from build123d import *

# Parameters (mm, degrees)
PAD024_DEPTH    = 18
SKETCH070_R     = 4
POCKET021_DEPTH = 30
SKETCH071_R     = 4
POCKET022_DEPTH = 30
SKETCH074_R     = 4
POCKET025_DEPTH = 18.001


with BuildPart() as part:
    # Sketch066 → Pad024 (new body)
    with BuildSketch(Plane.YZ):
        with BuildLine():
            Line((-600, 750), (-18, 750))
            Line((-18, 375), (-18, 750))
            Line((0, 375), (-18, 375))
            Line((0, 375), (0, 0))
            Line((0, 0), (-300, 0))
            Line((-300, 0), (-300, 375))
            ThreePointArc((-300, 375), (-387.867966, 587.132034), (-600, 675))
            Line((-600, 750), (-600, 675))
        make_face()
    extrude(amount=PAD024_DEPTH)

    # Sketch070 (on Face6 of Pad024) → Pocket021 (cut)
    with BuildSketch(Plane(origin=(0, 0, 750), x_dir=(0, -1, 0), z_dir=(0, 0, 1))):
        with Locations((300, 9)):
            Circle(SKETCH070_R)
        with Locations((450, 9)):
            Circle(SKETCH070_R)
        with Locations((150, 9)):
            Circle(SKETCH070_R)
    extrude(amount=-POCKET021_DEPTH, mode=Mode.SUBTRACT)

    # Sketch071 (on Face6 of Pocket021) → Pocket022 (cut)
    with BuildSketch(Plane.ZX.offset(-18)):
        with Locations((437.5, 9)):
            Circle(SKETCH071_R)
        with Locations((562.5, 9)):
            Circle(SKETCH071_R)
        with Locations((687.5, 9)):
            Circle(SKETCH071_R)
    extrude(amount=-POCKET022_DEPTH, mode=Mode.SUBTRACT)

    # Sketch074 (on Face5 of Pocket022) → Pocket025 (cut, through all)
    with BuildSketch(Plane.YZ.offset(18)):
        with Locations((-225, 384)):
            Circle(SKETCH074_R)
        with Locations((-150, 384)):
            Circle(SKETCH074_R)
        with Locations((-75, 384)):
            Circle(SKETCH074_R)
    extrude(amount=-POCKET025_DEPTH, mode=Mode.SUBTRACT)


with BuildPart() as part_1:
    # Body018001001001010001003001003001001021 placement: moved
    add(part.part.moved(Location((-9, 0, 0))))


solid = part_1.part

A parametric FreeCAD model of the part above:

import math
import FreeCAD as App
import Part
import Sketcher
Q = App.Units.Quantity

doc = App.newDocument("Part")
params = doc.addObject("Spreadsheet::Sheet", "Params")
for row, (alias, value) in enumerate([
    ("sketch1_radius", "300.000001 mm"),
    ("sketch1_width", "582 mm"),
    ("sketch1_width2", "300 mm"),
    ("sketch1_height", "75 mm"),
    ("pad1_length", "18 mm"),
    ("sketch2_diameter", "8 mm"),
    ("pocket1_length", "30 mm"),
    ("sketch3_diameter", "8 mm"),
    ("pocket2_length", "30 mm"),
    ("sketch4_diameter", "8 mm"),
], start=1):
    params.set(f"A{row}", alias)
    params.set(f"B{row}", "=" + value)
    params.setAlias(f"B{row}", alias)

body = doc.addObject("PartDesign::Body", "Body")

sketch1 = body.newObject("Sketcher::SketchObject", "Sketch")
sketch1.AttachmentSupport = (doc.getObject("YZ_Plane"), [""])
sketch1.MapMode = "FlatFace"
sketch1.addGeometry([
    Part.LineSegment(App.Vector(-18, 750, 0), App.Vector(-600, 750, 0)),
    Part.LineSegment(App.Vector(-600, 750, 0), App.Vector(-600, 675, 0)),
    Part.ArcOfCircle(Part.Circle(App.Vector(-600, 375, 0), App.Vector(0, 0, 1), 300), math.radians(0), math.radians(90)),
    Part.LineSegment(App.Vector(-300, 375, 0), App.Vector(-300, 0, 0)),
    Part.LineSegment(App.Vector(-300, 0, 0), App.Vector(0, 0, 0)),
    Part.LineSegment(App.Vector(0, 0, 0), App.Vector(0, 375, 0)),
    Part.LineSegment(App.Vector(0, 375, 0), App.Vector(-18, 375, 0)),
    Part.LineSegment(App.Vector(-18, 375, 0), App.Vector(-18, 750, 0)),
], False)
sketch1.addConstraint([
    Sketcher.Constraint("Coincident", 0, 2, 1, 1),
    Sketcher.Constraint("Coincident", 1, 2, 2, 2),
    Sketcher.Constraint("Tangent", 2, 1, 3, 1),
    Sketcher.Constraint("Coincident", 3, 2, 4, 1),
    Sketcher.Constraint("Coincident", 4, 2, 5, 1),
    Sketcher.Constraint("Coincident", 5, 2, 6, 1),
    Sketcher.Constraint("Coincident", 6, 2, 7, 1),
    Sketcher.Constraint("Coincident", 7, 2, 0, 1),
    Sketcher.Constraint("Horizontal", 0),
    Sketcher.Constraint("Vertical", 1),
    Sketcher.Constraint("Vertical", 3),
    Sketcher.Constraint("Horizontal", 4),
    Sketcher.Constraint("Vertical", 5),
    Sketcher.Constraint("Horizontal", 6),
    Sketcher.Constraint("Vertical", 7),
    Sketcher.Constraint("Coincident", 4, 2, -1, 1),
    Sketcher.Constraint("Horizontal", 2, 1, 5, 2),
    Sketcher.Constraint("Vertical", 2, 3, 0, 2),
    Sketcher.Constraint("Equal", 5, 7),
    Sketcher.Constraint("Radius", 2, Q("300.000001 mm")),
    Sketcher.Constraint("DistanceX", 0, 2, 0, 1, Q("582 mm")),
    Sketcher.Constraint("DistanceX", 4, 1, 4, 2, Q("300 mm")),
    Sketcher.Constraint("DistanceY", 1, 2, 1, 1, Q("75 mm")),
])
sketch1.setExpression("Constraints[19]", "Params.sketch1_radius")
sketch1.setExpression("Constraints[20]", "Params.sketch1_width")
sketch1.setExpression("Constraints[21]", "Params.sketch1_width2")
sketch1.setExpression("Constraints[22]", "Params.sketch1_height")
pad1 = body.newObject("PartDesign::Pad", "Pad")
pad1.Profile = sketch1
pad1.setExpression("Length", "Params.pad1_length")

sketch2 = body.newObject("Sketcher::SketchObject", "Sketch001")
sketch2.AttachmentSupport = (doc.getObject("XY_Plane"), [""])
sketch2.MapMode = "FlatFace"
sketch2.AttachmentOffset = App.Placement(App.Vector(0, 0, 750), App.Rotation())
sketch2.addGeometry([
    Part.Circle(App.Vector(9, -300, 0), App.Vector(0, 0, 1), 4),
    Part.Circle(App.Vector(9, -450, 0), App.Vector(0, 0, 1), 4),
    Part.Circle(App.Vector(9, -150, 0), App.Vector(0, 0, 1), 4),
], False)
sketch2.addConstraint([
    Sketcher.Constraint("Equal", 0, 1),
    Sketcher.Constraint("Equal", 1, 2),
    Sketcher.Constraint("Vertical", 0, 3, 1, 3),
    Sketcher.Constraint("Vertical", 1, 3, 2, 3),
    Sketcher.Constraint("Diameter", 0, Q("8 mm")),
    Sketcher.Constraint("DistanceX", -1, 1, 0, 3, Q("9 mm")),
    Sketcher.Constraint("DistanceY", 0, 3, -1, 1, Q("300 mm")),
    Sketcher.Constraint("DistanceY", 1, 3, -1, 1, Q("450 mm")),
    Sketcher.Constraint("DistanceY", 2, 3, -1, 1, Q("150 mm")),
])
sketch2.setExpression("Constraints[4]", "Params.sketch2_diameter")
pocket1 = body.newObject("PartDesign::Pocket", "Pocket")
pocket1.Profile = sketch2
pocket1.setExpression("Length", "Params.pocket1_length")

sketch3 = body.newObject("Sketcher::SketchObject", "Sketch002")
sketch3.AttachmentSupport = (doc.getObject("XZ_Plane"), [""])
sketch3.MapMode = "FlatFace"
sketch3.AttachmentOffset = App.Placement(App.Vector(0, 0, 18), App.Rotation())
sketch3.addGeometry([
    Part.Circle(App.Vector(9, 437.5, 0), App.Vector(0, 0, 1), 4),
    Part.Circle(App.Vector(9, 562.5, 0), App.Vector(0, 0, 1), 4),
    Part.Circle(App.Vector(9, 687.5, 0), App.Vector(0, 0, 1), 4),
], False)
sketch3.addConstraint([
    Sketcher.Constraint("Equal", 0, 1),
    Sketcher.Constraint("Equal", 1, 2),
    Sketcher.Constraint("Vertical", 0, 3, 1, 3),
    Sketcher.Constraint("Vertical", 1, 3, 2, 3),
    Sketcher.Constraint("Diameter", 0, Q("8 mm")),
    Sketcher.Constraint("DistanceX", -1, 1, 0, 3, Q("9 mm")),
    Sketcher.Constraint("DistanceY", 0, 3, 1, 3, Q("125 mm")),
    Sketcher.Constraint("DistanceY", 1, 3, 2, 3, Q("125 mm")),
    Sketcher.Constraint("DistanceY", -1, 1, 0, 3, Q("437.5 mm")),
])
sketch3.setExpression("Constraints[4]", "Params.sketch3_diameter")
pocket2 = body.newObject("PartDesign::Pocket", "Pocket001")
pocket2.Profile = sketch3
pocket2.setExpression("Length", "Params.pocket2_length")
pocket2.Reversed = True

sketch4 = body.newObject("Sketcher::SketchObject", "Sketch003")
sketch4.AttachmentSupport = (doc.getObject("YZ_Plane"), [""])
sketch4.MapMode = "FlatFace"
sketch4.AttachmentOffset = App.Placement(App.Vector(0, 0, 18), App.Rotation())
sketch4.addGeometry([
    Part.Circle(App.Vector(-225, 384, 0), App.Vector(0, 0, 1), 4),
    Part.Circle(App.Vector(-150, 384, 0), App.Vector(0, 0, 1), 4),
    Part.Circle(App.Vector(-75, 384, 0), App.Vector(0, 0, 1), 4),
], False)
sketch4.addConstraint([
    Sketcher.Constraint("Equal", 0, 1),
    Sketcher.Constraint("Equal", 1, 2),
    Sketcher.Constraint("Horizontal", 0, 3, 1, 3),
    Sketcher.Constraint("Horizontal", 1, 3, 2, 3),
    Sketcher.Constraint("Diameter", 0, Q("8 mm")),
    Sketcher.Constraint("DistanceX", 0, 3, -1, 1, Q("225 mm")),
    Sketcher.Constraint("DistanceY", -1, 1, 0, 3, Q("384 mm")),
    Sketcher.Constraint("DistanceX", 1, 3, -1, 1, Q("150 mm")),
    Sketcher.Constraint("DistanceX", 2, 3, -1, 1, Q("75 mm")),
])
sketch4.setExpression("Constraints[4]", "Params.sketch4_diameter")
pocket3 = body.newObject("PartDesign::Pocket", "Pocket002")
pocket3.Profile = sketch4
pocket3.Type = "ThroughAll"
body2 = doc.addObject("PartDesign::Body", "Body001")
doc.recompute()

body.Placement = App.Placement(App.Vector(-9, 0, 0), App.Rotation(App.Vector(0, 0, 1), 0))
boolean = body2.newObject("PartDesign::Boolean", "Boolean")
boolean.Type = "Fuse"
boolean.addObjects([body])

doc.recompute()
